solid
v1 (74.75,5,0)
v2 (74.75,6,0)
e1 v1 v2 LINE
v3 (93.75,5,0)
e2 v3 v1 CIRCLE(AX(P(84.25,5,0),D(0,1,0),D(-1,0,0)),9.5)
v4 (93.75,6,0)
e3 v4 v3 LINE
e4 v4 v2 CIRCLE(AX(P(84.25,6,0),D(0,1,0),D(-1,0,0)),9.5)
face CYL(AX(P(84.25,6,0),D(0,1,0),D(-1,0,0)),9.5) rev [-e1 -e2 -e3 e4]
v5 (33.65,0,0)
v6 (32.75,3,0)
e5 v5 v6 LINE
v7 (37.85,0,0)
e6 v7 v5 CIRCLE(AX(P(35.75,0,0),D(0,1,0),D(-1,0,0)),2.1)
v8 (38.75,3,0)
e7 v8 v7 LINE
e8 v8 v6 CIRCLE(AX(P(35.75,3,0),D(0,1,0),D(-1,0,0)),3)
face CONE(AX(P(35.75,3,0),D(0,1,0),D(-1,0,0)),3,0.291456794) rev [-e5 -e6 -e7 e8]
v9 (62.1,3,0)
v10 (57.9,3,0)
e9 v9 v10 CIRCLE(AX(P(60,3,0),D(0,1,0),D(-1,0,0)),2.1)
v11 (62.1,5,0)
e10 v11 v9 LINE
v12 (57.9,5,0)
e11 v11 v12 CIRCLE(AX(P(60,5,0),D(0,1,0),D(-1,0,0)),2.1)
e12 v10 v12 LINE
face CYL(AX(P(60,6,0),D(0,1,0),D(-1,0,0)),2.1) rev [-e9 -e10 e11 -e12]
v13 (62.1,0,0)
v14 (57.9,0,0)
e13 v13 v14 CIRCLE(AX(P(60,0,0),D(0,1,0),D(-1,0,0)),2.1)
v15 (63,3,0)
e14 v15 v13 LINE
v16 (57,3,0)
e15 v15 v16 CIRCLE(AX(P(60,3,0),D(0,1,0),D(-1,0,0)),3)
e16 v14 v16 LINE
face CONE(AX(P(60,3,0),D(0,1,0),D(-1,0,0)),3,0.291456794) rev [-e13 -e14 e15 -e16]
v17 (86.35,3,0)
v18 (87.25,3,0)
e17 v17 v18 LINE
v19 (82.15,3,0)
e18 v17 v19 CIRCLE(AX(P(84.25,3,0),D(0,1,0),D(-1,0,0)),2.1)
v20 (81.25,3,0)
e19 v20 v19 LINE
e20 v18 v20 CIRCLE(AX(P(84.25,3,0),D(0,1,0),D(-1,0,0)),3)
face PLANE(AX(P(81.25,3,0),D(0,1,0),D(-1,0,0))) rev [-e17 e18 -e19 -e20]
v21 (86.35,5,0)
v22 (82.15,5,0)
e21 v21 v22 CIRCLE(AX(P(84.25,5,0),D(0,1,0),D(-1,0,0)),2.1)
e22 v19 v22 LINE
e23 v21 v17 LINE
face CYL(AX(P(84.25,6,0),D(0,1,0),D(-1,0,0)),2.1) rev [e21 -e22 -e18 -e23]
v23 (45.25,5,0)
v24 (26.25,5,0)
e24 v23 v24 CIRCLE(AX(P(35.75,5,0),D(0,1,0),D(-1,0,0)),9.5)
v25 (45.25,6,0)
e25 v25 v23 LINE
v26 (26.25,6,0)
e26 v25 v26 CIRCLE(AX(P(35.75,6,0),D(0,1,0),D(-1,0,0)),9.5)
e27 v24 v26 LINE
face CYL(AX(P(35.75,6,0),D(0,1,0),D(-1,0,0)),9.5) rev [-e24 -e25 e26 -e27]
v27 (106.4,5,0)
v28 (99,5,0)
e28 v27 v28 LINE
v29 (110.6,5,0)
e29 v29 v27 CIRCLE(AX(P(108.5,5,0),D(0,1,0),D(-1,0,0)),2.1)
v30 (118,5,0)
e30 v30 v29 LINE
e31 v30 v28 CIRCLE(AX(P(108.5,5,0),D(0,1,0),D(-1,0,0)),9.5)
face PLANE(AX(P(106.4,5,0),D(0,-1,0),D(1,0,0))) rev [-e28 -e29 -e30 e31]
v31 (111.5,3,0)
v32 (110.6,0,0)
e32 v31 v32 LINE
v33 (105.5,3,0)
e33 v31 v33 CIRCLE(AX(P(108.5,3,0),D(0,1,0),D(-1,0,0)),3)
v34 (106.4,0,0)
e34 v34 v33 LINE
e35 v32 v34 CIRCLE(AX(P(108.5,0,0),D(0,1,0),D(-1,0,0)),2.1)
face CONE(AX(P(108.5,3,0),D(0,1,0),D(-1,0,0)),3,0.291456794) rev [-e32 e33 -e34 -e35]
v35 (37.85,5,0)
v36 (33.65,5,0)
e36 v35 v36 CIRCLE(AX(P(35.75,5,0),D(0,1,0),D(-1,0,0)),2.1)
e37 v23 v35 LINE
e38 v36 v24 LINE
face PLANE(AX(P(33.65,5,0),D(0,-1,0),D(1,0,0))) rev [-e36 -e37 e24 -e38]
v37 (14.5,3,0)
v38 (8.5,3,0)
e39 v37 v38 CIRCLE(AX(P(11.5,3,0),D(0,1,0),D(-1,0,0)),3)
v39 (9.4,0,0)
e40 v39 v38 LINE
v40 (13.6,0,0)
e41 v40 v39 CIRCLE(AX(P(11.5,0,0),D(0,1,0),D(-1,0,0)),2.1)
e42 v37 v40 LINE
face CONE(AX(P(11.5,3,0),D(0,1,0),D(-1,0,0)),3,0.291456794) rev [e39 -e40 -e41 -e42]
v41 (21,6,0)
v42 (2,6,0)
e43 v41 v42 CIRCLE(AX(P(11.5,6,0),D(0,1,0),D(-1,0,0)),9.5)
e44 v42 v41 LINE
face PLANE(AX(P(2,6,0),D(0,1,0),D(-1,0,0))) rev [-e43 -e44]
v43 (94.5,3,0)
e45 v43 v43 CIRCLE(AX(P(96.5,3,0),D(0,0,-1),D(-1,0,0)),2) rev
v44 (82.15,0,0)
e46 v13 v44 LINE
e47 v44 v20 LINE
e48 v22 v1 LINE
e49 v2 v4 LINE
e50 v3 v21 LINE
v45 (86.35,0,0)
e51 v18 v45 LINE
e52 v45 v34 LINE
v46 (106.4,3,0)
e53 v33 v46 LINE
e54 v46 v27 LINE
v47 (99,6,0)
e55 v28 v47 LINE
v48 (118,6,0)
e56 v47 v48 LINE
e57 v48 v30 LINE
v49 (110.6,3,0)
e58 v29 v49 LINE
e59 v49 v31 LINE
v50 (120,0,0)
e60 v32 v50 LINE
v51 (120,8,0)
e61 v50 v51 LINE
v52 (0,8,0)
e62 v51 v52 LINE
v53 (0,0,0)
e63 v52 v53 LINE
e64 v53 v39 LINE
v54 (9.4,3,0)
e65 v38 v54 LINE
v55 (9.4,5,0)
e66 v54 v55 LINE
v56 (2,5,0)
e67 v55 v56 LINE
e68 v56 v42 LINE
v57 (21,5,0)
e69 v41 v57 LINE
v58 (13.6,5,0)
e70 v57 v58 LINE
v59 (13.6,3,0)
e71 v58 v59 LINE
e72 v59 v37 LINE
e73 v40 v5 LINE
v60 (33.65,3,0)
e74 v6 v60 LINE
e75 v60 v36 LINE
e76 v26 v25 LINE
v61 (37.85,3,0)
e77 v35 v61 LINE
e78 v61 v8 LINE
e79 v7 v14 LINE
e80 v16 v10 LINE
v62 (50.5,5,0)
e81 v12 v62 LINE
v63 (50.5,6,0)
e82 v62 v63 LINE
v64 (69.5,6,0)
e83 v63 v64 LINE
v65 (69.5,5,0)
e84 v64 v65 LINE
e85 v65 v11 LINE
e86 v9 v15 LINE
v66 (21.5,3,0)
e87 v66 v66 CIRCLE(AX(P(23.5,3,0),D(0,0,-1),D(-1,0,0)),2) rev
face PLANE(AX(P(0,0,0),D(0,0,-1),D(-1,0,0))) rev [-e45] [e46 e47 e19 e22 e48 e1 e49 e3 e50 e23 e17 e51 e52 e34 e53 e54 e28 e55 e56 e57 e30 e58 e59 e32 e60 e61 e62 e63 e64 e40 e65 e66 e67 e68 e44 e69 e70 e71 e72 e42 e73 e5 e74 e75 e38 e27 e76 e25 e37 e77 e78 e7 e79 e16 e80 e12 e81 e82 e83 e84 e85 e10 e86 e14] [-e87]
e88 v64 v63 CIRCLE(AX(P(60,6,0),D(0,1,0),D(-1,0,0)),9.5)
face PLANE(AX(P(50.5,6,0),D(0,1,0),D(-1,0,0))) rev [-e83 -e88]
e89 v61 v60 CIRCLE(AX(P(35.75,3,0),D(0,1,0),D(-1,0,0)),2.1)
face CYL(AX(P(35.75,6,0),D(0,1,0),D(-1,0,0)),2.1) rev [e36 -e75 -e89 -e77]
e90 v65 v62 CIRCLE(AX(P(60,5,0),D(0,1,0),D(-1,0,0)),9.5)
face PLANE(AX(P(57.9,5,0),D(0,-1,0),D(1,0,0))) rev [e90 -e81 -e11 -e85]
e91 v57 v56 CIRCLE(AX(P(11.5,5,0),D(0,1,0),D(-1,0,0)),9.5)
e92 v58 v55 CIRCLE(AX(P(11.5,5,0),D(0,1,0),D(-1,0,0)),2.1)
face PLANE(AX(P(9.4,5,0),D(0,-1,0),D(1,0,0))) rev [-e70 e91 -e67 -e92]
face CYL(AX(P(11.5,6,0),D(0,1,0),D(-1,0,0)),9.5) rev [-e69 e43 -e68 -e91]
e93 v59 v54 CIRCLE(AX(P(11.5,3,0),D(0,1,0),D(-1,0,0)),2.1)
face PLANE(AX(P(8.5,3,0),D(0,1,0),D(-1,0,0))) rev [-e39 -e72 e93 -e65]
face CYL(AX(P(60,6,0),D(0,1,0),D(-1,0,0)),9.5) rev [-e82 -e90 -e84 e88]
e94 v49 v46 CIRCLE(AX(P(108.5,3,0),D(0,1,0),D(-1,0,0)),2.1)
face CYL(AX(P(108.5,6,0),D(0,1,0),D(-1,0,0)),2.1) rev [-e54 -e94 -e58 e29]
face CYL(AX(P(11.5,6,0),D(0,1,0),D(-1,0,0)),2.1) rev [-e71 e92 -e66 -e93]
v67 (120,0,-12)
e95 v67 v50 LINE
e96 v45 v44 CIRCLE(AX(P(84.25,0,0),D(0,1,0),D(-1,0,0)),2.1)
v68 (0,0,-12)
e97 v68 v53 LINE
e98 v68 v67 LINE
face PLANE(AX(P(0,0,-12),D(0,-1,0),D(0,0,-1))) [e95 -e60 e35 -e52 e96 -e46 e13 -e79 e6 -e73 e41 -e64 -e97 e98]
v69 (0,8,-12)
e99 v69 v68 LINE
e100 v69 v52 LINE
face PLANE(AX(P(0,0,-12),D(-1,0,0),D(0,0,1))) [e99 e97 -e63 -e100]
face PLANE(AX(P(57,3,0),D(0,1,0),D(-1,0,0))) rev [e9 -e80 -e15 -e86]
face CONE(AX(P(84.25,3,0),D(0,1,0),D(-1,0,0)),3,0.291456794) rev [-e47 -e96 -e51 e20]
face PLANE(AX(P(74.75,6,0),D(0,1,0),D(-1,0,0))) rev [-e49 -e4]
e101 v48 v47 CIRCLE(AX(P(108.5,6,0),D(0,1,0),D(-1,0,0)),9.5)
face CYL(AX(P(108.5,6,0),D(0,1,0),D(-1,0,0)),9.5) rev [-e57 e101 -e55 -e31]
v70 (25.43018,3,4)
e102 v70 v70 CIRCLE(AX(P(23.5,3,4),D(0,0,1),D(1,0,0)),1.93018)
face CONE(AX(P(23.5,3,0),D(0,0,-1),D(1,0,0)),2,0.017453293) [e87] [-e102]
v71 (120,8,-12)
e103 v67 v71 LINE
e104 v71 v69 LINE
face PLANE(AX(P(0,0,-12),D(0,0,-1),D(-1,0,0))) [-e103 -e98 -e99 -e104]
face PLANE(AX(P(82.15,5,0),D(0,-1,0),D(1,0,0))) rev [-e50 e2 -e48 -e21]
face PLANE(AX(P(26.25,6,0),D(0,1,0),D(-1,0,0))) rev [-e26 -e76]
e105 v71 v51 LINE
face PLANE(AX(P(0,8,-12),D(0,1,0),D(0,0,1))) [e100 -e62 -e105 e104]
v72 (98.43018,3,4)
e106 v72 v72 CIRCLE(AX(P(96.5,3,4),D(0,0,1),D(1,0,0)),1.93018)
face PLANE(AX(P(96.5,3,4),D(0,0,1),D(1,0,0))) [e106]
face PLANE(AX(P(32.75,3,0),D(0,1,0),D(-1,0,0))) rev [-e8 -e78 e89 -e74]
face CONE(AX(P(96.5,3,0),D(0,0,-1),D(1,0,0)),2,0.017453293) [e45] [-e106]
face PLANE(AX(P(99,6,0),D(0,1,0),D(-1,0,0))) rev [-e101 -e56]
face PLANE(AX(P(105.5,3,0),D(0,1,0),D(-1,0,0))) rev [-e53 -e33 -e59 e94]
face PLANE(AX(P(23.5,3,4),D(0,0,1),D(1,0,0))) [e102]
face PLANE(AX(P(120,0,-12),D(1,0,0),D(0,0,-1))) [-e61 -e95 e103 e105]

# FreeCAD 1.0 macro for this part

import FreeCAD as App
import Part
import Sketcher


def faces_at(feature, points):
    """Names of the faces that lie closest to the given points."""
    faces = feature.Shape.Faces
    near = lambda p: min(range(len(faces)), key=lambda i: faces[i].distToShape(Part.Vertex(*p))[0])
    return sorted({f"Face{near(p) + 1}" for p in points})


def add_polygon(sketch, points):
    """Adds a closed chain of lines whose ends are joined by coincident constraints."""
    first, n = sketch.GeometryCount, len(points)
    for a, b in zip(points, points[1:] + points[:1]):
        sketch.addGeometry(Part.LineSegment(App.Vector(*a, 0), App.Vector(*b, 0)), False)
    for i in range(n):
        sketch.addConstraint(Sketcher.Constraint("Coincident", first + i, 2, first + (i + 1) % n, 1))

doc = App.newDocument("Part")
body = doc.addObject("PartDesign::Body", "Body")

sketch1 = body.newObject("Sketcher::SketchObject", "Sketch")
sketch1.AttachmentSupport = (doc.getObject("XY_Plane"), [""])
sketch1.MapMode = "FlatFace"
add_polygon(sketch1, [(0, 8), (0, 0), (120, 0), (120, 8)])
sketch1.addConstraint([
    Sketcher.Constraint("Vertical", 0),
    Sketcher.Constraint("Horizontal", 1),
    Sketcher.Constraint("Vertical", 2),
    Sketcher.Constraint("Horizontal", 3),
    Sketcher.Constraint("Coincident", 0, 2, -1, 1),
    Sketcher.Constraint("DistanceX", 1, 1, 1, 2, 120.0),
    Sketcher.Constraint("DistanceY", 0, 2, 0, 1, 8.0),
])
pad1 = body.newObject("PartDesign::Pad", "Pad")
pad1.Profile = sketch1
pad1.Length = 12
pad1.Reversed = True

sketch2 = body.newObject("Sketcher::SketchObject", "Sketch001")
sketch2.AttachmentSupport = (doc.getObject("XY_Plane"), [""])
sketch2.MapMode = "FlatFace"
add_polygon(sketch2, [(9.4, 3), (8.5, 3), (9.4, 0), (11.5, 0), (11.5, 6), (2, 6), (2, 5), (9.4, 5)])
sketch2.addGeometry(Part.LineSegment(App.Vector(11.5, 6, 0), App.Vector(11.5, 0, 0)), True)
sketch2.addConstraint([
    Sketcher.Constraint("Horizontal", 0),
    Sketcher.Constraint("Horizontal", 2),
    Sketcher.Constraint("Vertical", 3),
    Sketcher.Constraint("Horizontal", 4),
    Sketcher.Constraint("Vertical", 5),
    Sketcher.Constraint("Horizontal", 6),
    Sketcher.Constraint("Vertical", 7),
    Sketcher.Constraint("Vertical", 8),
    Sketcher.Constraint("Coincident", 8, 1, 3, 2),
    Sketcher.Constraint("PointOnObject", 1, 2, -1),
    Sketcher.Constraint("PointOnObject", 8, 2, -1),
    Sketcher.Constraint("Vertical", 1, 2, 6, 2),
    Sketcher.Constraint("DistanceY", 3, 1, 3, 2, 6.0),
    Sketcher.Constraint("DistanceY", 5, 2, 5, 1, 1.0),
    Sketcher.Constraint("DistanceY", 7, 2, 7, 1, 2.0),
    Sketcher.Constraint("DistanceX", 0, 2, 0, 1, 0.9),
    Sketcher.Constraint("DistanceX", 2, 1, 2, 2, 2.1),
    Sketcher.Constraint("DistanceX", 4, 2, 4, 1, 9.5),
    Sketcher.Constraint("DistanceX", -1, 1, 4, 2, 2.0),
])
groove = body.newObject("PartDesign::Groove", "Groove")
groove.Profile = sketch2
groove.ReferenceAxis = (sketch2, ["Axis0"])
groove.Angle = 360
doc.recompute()

linearpattern = body.newObject("PartDesign::LinearPattern", "LinearPattern")
linearpattern.Originals = [groove]
linearpattern.Direction = (doc.getObject("X_Axis"), [""])
linearpattern.Mode = "offset"
linearpattern.Offset = 24.25
linearpattern.Occurrences = 5
body.Tip = linearpattern
body2 = doc.addObject("PartDesign::Body", "Body001")

sketch3 = body2.newObject("Sketcher::SketchObject", "Sketch002")
sketch3.AttachmentSupport = (doc.getObject("XY_Plane001"), [""])
sketch3.MapMode = "FlatFace"
sketch3.addGeometry(Part.Circle(App.Vector(23.5, 3, 0), App.Vector(0, 0, 1), 2), False)
sketch3.addConstraint([
    Sketcher.Constraint("Diameter", 0, 4.0),
    Sketcher.Constraint("DistanceY", -1, 1, 0, 3, 3.0),
    Sketcher.Constraint("DistanceX", -1, 1, 0, 3, 23.5),
])
pad2 = body2.newObject("PartDesign::Pad", "Pad001")
pad2.Profile = sketch3
pad2.Length = 4
doc.recompute()

draft = body2.newObject("PartDesign::Draft", "Draft")
draft.Base = (pad2, faces_at(pad2, [(21.5, 3, 2)]))
draft.NeutralPlane = (doc.getObject("XY_Plane001"), [""])
draft.Angle = 1
draft.Reversed = False
doc.recompute()

boolean = body.newObject("PartDesign::Boolean", "Boolean")
boolean.Type = "Fuse"
boolean.addObjects([body2])
body3 = doc.addObject("PartDesign::Body", "Body002")

sketch4 = body3.newObject("Sketcher::SketchObject", "Sketch003")
sketch4.AttachmentSupport = (doc.getObject("XY_Plane002"), [""])
sketch4.MapMode = "FlatFace"
sketch4.addGeometry(Part.Circle(App.Vector(96.5, 3, 0), App.Vector(0, 0, 1), 2), False)
sketch4.addConstraint([
    Sketcher.Constraint("Diameter", 0, 4.0),
    Sketcher.Constraint("DistanceY", -1, 1, 0, 3, 3.0),
    Sketcher.Constraint("DistanceX", -1, 1, 0, 3, 96.5),
])
pad3 = body3.newObject("PartDesign::Pad", "Pad002")
pad3.Profile = sketch4
pad3.Length = 4
doc.recompute()

draft2 = body3.newObject("PartDesign::Draft", "Draft001")
draft2.Base = (pad3, faces_at(pad3, [(94.5, 3, 2)]))
draft2.NeutralPlane = (doc.getObject("XY_Plane002"), [""])
draft2.Angle = 1
draft2.Reversed = False
doc.recompute()

boolean2 = body.newObject("PartDesign::Boolean", "Boolean001")
boolean2.Type = "Fuse"
boolean2.addObjects([body3])

doc.recompute()
